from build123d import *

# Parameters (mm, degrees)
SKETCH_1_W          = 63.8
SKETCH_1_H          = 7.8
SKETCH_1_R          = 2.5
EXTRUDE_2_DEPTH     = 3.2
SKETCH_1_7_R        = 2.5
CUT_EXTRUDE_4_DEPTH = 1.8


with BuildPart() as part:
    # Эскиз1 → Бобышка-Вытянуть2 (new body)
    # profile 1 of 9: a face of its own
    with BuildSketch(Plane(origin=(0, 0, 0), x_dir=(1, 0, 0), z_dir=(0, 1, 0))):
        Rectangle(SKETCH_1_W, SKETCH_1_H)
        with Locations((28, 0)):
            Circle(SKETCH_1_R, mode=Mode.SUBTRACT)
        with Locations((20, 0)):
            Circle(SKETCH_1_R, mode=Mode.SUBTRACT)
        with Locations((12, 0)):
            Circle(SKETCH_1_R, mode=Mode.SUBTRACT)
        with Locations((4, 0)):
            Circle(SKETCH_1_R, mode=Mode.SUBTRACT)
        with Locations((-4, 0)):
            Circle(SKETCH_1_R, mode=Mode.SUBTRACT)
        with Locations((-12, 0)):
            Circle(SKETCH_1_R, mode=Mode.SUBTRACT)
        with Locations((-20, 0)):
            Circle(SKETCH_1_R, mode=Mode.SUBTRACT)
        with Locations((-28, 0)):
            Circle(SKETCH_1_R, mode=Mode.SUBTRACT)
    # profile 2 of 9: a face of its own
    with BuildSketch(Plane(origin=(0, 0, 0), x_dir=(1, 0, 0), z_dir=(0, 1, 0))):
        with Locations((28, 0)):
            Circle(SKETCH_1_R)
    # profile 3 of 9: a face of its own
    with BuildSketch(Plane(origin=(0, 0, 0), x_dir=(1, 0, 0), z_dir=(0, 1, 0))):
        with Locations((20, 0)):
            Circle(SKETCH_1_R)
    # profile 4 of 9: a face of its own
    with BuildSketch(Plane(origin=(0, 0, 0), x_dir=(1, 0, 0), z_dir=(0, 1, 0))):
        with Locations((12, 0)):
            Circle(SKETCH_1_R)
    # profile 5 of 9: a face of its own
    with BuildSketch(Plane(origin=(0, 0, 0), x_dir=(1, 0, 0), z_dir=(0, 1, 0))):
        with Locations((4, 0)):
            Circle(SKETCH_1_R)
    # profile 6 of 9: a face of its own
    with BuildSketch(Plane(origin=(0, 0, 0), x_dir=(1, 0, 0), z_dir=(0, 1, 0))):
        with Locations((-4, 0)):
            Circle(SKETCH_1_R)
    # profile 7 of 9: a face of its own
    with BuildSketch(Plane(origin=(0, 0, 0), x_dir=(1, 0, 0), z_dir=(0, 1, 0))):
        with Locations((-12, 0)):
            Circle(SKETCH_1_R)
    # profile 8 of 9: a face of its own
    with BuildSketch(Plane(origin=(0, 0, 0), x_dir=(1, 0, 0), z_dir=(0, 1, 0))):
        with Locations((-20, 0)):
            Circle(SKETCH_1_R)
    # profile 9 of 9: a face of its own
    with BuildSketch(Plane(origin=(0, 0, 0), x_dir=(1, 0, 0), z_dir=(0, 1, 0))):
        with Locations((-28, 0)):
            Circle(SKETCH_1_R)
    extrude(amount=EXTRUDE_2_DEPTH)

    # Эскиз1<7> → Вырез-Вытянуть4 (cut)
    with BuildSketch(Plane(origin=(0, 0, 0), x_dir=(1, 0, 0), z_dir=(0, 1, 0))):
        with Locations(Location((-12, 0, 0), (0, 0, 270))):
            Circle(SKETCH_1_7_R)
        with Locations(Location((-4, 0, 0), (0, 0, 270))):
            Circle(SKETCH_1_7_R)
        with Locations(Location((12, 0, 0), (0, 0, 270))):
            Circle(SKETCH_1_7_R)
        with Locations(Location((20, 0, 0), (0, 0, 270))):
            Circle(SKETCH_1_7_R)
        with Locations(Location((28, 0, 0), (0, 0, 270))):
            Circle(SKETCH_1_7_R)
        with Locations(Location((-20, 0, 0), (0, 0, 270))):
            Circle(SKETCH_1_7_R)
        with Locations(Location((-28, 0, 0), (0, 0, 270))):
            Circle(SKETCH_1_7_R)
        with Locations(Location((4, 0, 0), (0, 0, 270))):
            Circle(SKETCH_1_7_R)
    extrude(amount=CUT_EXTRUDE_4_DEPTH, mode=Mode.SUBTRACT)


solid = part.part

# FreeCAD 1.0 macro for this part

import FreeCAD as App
import Part
import Sketcher
from FreeCAD import Vector

doc = App.newDocument("Part")
params = doc.addObject("Spreadsheet::Sheet", "Params")
for row, (alias, value) in enumerate([
    ("sketch1_width", "63.8 mm"),
    ("sketch1_height", "7.8 mm"),
    ("pad1_length", "3.2 mm"),
    ("sketch2_diameter", "5 mm"),
    ("pocket1_length", "1.8 mm"),
], start=1):
    params.set(f"A{row}", alias)
    params.set(f"B{row}", "=" + value)
    params.setAlias(f"B{row}", alias)

body = doc.addObject("PartDesign::Body", "Body")

# Sketch on XZ plane
sketch1 = body.newObject("Sketcher::SketchObject", "Sketch")
sketch1.AttachmentSupport = (doc.getObject("XZ_Plane"), [""])
sketch1.MapMode = "FlatFace"
sketch1.addGeometry(Part.LineSegment(Vector(-32, -4, 0), Vector(-32, 4, 0)), False)
sketch1.addGeometry(Part.LineSegment(Vector(-32, 4, 0), Vector(32, 4, 0)), False)
sketch1.addGeometry(Part.LineSegment(Vector(32, 4, 0), Vector(32, -4, 0)), False)
sketch1.addGeometry(Part.LineSegment(Vector(32, -4, 0), Vector(-32, -4, 0)), False)
sketch1.addConstraint(Sketcher.Constraint("Coincident", 0, 2, 1, 1))
sketch1.addConstraint(Sketcher.Constraint("Coincident", 1, 2, 2, 1))
sketch1.addConstraint(Sketcher.Constraint("Coincident", 2, 2, 3, 1))
sketch1.addConstraint(Sketcher.Constraint("Coincident", 3, 2, 0, 1))
sketch1.addConstraint(Sketcher.Constraint("Vertical", 0))
sketch1.addConstraint(Sketcher.Constraint("Horizontal", 1))
sketch1.addConstraint(Sketcher.Constraint("Vertical", 2))
sketch1.addConstraint(Sketcher.Constraint("Horizontal", 3))
sketch1.addConstraint(Sketcher.Constraint("Symmetric", 0, 2, 2, 2, -1, 1))
sketch1.addConstraint(Sketcher.Constraint("DistanceX", 1, 1, 1, 2, 63.8))
sketch1.addConstraint(Sketcher.Constraint("DistanceY", 0, 1, 0, 2, 7.8))
sketch1.setExpression("Constraints[9]", "Params.sketch1_width")
sketch1.setExpression("Constraints[10]", "Params.sketch1_height")
pad1 = body.newObject("PartDesign::Pad", "Pad")
pad1.Profile = sketch1
pad1.setExpression("Length", "Params.pad1_length")
pad1.Reversed = True

# Sketch on XZ plane
sketch2 = body.newObject("Sketcher::SketchObject", "Sketch001")
sketch2.AttachmentSupport = (doc.getObject("XZ_Plane"), [""])
sketch2.MapMode = "FlatFace"
sketch2.addGeometry(Part.Circle(Vector(-12, 0, 0), Vector(0, 0, 1), 2.5), False)
sketch2.addGeometry(Part.Circle(Vector(-4, 0, 0), Vector(0, 0, 1), 2.5), False)
sketch2.addGeometry(Part.Circle(Vector(12, 0, 0), Vector(0, 0, 1), 2.5), False)
sketch2.addGeometry(Part.Circle(Vector(20, 0, 0), Vector(0, 0, 1), 2.5), False)
sketch2.addGeometry(Part.Circle(Vector(28, 0, 0), Vector(0, 0, 1), 2.5), False)
sketch2.addGeometry(Part.Circle(Vector(-20, 0, 0), Vector(0, 0, 1), 2.5), False)
sketch2.addGeometry(Part.Circle(Vector(-28, 0, 0), Vector(0, 0, 1), 2.5), False)
sketch2.addGeometry(Part.Circle(Vector(4, 0, 0), Vector(0, 0, 1), 2.5), False)
sketch2.addConstraint(Sketcher.Constraint("Equal", 0, 1))
sketch2.addConstraint(Sketcher.Constraint("Equal", 1, 2))
sketch2.addConstraint(Sketcher.Constraint("Equal", 2, 3))
sketch2.addConstraint(Sketcher.Constraint("Equal", 3, 4))
sketch2.addConstraint(Sketcher.Constraint("Equal", 4, 5))
sketch2.addConstraint(Sketcher.Constraint("Equal", 5, 6))
sketch2.addConstraint(Sketcher.Constraint("Equal", 6, 7))
sketch2.addConstraint(Sketcher.Constraint("Symmetric", 0, 3, 2, 3, -1, 1))
sketch2.addConstraint(Sketcher.Constraint("Symmetric", 3, 3, 5, 3, -1, 1))
sketch2.addConstraint(Sketcher.Constraint("Symmetric", 4, 3, 6, 3, -1, 1))
sketch2.addConstraint(Sketcher.Constraint("Symmetric", 1, 3, 7, 3, -1, 1))
sketch2.addConstraint(Sketcher.Constraint("PointOnObject", 0, 3, -1))
sketch2.addConstraint(Sketcher.Constraint("PointOnObject", 1, 3, -1))
sketch2.addConstraint(Sketcher.Constraint("PointOnObject", 3, 3, -1))
sketch2.addConstraint(Sketcher.Constraint("PointOnObject", 4, 3, -1))
sketch2.addConstraint(Sketcher.Constraint("Diameter", 0, 5.0))
sketch2.addConstraint(Sketcher.Constraint("DistanceX", 0, 3, -1, 1, 12.0))
sketch2.addConstraint(Sketcher.Constraint("DistanceX", 1, 3, -1, 1, 4.0))
sketch2.addConstraint(Sketcher.Constraint("DistanceX", -1, 1, 3, 3, 20.0))
sketch2.addConstraint(Sketcher.Constraint("DistanceX", -1, 1, 4, 3, 28.0))
sketch2.setExpression("Constraints[15]", "Params.sketch2_diameter")
pocket1 = body.newObject("PartDesign::Pocket", "Pocket")
pocket1.Profile = sketch2
pocket1.setExpression("Length", "Params.pocket1_length")

doc.recompute()
